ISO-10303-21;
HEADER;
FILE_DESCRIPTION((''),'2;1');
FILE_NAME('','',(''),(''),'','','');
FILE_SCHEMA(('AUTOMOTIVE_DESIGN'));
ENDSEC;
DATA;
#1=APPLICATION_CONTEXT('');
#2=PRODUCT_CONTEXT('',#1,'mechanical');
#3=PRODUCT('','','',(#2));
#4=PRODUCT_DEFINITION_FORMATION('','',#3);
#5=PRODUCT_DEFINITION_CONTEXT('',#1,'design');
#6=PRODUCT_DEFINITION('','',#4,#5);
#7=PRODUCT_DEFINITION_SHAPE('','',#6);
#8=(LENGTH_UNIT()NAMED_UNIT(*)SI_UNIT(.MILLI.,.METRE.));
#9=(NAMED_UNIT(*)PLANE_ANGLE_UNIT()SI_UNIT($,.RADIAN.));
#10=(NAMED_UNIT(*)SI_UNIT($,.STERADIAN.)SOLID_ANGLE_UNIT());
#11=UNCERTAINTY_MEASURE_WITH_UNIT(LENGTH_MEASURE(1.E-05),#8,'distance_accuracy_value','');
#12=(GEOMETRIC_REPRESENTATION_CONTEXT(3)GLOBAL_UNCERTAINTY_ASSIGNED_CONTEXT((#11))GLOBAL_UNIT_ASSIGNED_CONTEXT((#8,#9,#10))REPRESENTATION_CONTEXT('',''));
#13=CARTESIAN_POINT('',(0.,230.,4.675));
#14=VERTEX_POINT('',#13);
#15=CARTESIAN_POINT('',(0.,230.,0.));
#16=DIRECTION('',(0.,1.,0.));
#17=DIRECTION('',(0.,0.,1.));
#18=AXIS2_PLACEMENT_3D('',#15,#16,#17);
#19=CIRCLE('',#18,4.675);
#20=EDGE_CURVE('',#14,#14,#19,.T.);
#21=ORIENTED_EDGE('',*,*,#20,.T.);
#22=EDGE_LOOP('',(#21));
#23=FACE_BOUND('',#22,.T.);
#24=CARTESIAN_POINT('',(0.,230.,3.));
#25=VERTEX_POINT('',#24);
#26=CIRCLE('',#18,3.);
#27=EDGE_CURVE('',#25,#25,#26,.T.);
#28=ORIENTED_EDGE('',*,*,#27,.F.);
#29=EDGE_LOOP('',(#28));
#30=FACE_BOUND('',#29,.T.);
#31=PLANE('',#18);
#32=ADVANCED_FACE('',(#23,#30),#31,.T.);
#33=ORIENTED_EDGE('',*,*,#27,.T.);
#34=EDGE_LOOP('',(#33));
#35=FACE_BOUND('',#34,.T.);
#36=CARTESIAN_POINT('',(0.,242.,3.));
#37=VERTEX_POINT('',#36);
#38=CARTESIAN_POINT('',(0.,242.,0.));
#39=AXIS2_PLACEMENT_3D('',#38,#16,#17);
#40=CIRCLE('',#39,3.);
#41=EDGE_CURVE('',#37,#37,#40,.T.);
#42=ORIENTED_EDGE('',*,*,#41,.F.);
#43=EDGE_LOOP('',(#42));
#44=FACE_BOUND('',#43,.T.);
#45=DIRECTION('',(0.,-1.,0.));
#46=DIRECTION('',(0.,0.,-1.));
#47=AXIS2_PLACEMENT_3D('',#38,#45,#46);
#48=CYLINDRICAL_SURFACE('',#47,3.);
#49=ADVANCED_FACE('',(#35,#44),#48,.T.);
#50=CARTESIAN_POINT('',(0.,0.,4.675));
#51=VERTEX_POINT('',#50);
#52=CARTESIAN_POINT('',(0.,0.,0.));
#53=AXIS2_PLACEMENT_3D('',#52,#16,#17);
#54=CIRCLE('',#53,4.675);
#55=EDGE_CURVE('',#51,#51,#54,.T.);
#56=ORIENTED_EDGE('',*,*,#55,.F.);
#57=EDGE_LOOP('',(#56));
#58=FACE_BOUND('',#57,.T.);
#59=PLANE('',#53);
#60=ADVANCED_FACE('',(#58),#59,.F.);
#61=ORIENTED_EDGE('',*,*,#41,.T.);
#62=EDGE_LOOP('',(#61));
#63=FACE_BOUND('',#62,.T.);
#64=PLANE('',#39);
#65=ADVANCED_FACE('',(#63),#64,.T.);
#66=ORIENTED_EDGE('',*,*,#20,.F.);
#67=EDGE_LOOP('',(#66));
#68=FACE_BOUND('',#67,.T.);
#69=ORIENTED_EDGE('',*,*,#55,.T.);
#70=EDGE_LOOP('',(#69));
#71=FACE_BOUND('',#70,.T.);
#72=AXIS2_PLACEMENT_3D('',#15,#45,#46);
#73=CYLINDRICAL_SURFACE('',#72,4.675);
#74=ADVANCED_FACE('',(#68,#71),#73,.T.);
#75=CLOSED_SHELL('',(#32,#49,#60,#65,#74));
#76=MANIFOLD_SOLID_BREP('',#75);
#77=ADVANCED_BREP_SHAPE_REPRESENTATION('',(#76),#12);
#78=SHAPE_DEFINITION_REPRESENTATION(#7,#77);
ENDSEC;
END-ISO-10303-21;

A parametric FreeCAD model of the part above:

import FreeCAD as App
import Part
import Sketcher

V = App.Vector

doc = App.newDocument("Part")
body = doc.addObject("PartDesign::Body", "Body")

# Sketch on XZ plane
sketch1 = body.newObject("Sketcher::SketchObject", "Sketch")
sketch1.AttachmentSupport = (doc.getObject("XZ_Plane"), [""])
sketch1.MapMode = "FlatFace"
sketch1.addGeometry(Part.Circle(V(0, 0, 0), V(0, 0, 1), 4.675), False)
sketch1.addConstraint([
    Sketcher.Constraint("Coincident", 0, 3, -1, 1),
    Sketcher.Constraint("Diameter", 0, 9.35),
])
pad1 = body.newObject("PartDesign::Pad", "Pad")
pad1.Profile = sketch1
pad1.Length = 230
pad1.Reversed = True

# Sketch on XZ plane
sketch2 = body.newObject("Sketcher::SketchObject", "Sketch001")
sketch2.AttachmentSupport = (doc.getObject("XZ_Plane"), [""])
sketch2.MapMode = "FlatFace"
sketch2.AttachmentOffset = App.Placement(V(0, 0, -230), App.Rotation())
sketch2.addGeometry(Part.Circle(V(0, 0, 0), V(0, 0, 1), 3), False)
sketch2.addConstraint([
    Sketcher.Constraint("Coincident", 0, 3, -1, 1),
    Sketcher.Constraint("Diameter", 0, 6.0),
])
pad2 = body.newObject("PartDesign::Pad", "Pad001")
pad2.Profile = sketch2
pad2.Length = 12
pad2.Reversed = True

doc.recompute()
